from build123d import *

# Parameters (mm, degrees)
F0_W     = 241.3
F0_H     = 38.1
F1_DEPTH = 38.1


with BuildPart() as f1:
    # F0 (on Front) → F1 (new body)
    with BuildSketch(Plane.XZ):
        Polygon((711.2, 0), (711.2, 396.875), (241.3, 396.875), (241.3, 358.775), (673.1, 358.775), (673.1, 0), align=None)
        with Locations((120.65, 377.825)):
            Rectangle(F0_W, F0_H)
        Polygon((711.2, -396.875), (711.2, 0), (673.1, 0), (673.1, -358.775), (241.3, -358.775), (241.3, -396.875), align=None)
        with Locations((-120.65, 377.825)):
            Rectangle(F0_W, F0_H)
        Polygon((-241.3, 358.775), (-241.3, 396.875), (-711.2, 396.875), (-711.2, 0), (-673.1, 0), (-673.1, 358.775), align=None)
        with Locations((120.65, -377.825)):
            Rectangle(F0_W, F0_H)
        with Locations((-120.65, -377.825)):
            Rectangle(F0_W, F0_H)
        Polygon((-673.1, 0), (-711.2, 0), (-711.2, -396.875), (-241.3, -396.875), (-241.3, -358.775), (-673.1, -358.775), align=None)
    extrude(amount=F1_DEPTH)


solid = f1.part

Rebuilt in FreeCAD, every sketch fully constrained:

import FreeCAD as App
import Part
import Sketcher
Q = App.Units.Quantity

doc = App.newDocument("Part")
body = doc.addObject("PartDesign::Body", "Body")

sketch1 = body.newObject("Sketcher::SketchObject", "Sketch")
sketch1.AttachmentSupport = (doc.getObject("XZ_Plane"), [""])
sketch1.MapMode = "FlatFace"
sketch1.addGeometry([
    Part.LineSegment(App.Vector(711, 397, 0), App.Vector(-711, 397, 0)),
    Part.LineSegment(App.Vector(-711, 397, 0), App.Vector(-711, -397, 0)),
    Part.LineSegment(App.Vector(-711, -397, 0), App.Vector(711, -397, 0)),
    Part.LineSegment(App.Vector(711, -397, 0), App.Vector(711, 397, 0)),
    Part.LineSegment(App.Vector(-673, 359, 0), App.Vector(673, 359, 0)),
    Part.LineSegment(App.Vector(673, 359, 0), App.Vector(673, -359, 0)),
    Part.LineSegment(App.Vector(673, -359, 0), App.Vector(-673, -359, 0)),
    Part.LineSegment(App.Vector(-673, -359, 0), App.Vector(-673, 359, 0)),
], False)
sketch1.addConstraint([
    Sketcher.Constraint("Coincident", 0, 2, 1, 1),
    Sketcher.Constraint("Coincident", 1, 2, 2, 1),
    Sketcher.Constraint("Coincident", 2, 2, 3, 1),
    Sketcher.Constraint("Coincident", 3, 2, 0, 1),
    Sketcher.Constraint("Coincident", 4, 2, 5, 1),
    Sketcher.Constraint("Coincident", 5, 2, 6, 1),
    Sketcher.Constraint("Coincident", 6, 2, 7, 1),
    Sketcher.Constraint("Coincident", 7, 2, 4, 1),
    Sketcher.Constraint("Horizontal", 0),
    Sketcher.Constraint("Vertical", 1),
    Sketcher.Constraint("Horizontal", 2),
    Sketcher.Constraint("Vertical", 3),
    Sketcher.Constraint("Horizontal", 4),
    Sketcher.Constraint("Vertical", 5),
    Sketcher.Constraint("Horizontal", 6),
    Sketcher.Constraint("Vertical", 7),
    Sketcher.Constraint("Symmetric", 0, 2, 2, 2, -1, 1),
    Sketcher.Constraint("Symmetric", 4, 2, 6, 2, -1, 1),
    Sketcher.Constraint("DistanceX", 0, 2, 0, 1, Q("56 in")),
    Sketcher.Constraint("DistanceX", 4, 1, 4, 2, Q("53 in")),
    Sketcher.Constraint("DistanceY", 1, 2, 1, 1, Q("31.25 in")),
    Sketcher.Constraint("DistanceY", 5, 2, 5, 1, Q("28.25 in")),
])
pad1 = body.newObject("PartDesign::Pad", "Pad")
pad1.Profile = sketch1
pad1.Length = Q("1.5 in")

doc.recompute()
